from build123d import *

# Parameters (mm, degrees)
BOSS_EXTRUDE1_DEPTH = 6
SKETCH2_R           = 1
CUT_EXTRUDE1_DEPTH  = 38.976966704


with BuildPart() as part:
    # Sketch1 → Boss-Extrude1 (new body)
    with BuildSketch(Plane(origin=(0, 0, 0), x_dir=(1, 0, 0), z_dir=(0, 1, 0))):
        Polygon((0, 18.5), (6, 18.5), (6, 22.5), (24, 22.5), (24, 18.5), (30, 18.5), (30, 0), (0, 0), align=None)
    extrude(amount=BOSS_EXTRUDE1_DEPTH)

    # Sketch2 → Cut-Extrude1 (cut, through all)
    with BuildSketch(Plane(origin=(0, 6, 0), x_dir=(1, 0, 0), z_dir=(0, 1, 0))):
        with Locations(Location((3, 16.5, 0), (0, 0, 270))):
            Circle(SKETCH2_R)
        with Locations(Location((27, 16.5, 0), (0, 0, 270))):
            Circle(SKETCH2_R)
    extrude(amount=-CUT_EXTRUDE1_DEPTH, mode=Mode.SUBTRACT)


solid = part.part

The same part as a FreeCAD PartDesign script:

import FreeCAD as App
import Part
import Sketcher

V = App.Vector

doc = App.newDocument("Part")
body = doc.addObject("PartDesign::Body", "Body")

sketch1 = doc.addObject("Sketcher::SketchObject", "Sketch")
body.addObject(sketch1)
sketch1.AttachmentSupport = (doc.XZ_Plane, [""])
sketch1.MapMode = "FlatFace"
sketch1.addGeometry([
    Part.LineSegment(V(6, -18.5, 0), V(0, -18.5, 0)),
    Part.LineSegment(V(0, -18.5, 0), V(0, 0, 0)),
    Part.LineSegment(V(0, 0, 0), V(30, 0, 0)),
    Part.LineSegment(V(30, 0, 0), V(30, -18.5, 0)),
    Part.LineSegment(V(30, -18.5, 0), V(24, -18.5, 0)),
    Part.LineSegment(V(24, -18.5, 0), V(24, -22.5, 0)),
    Part.LineSegment(V(24, -22.5, 0), V(6, -22.5, 0)),
    Part.LineSegment(V(6, -22.5, 0), V(6, -18.5, 0)),
], False)
sketch1.addConstraint([
    Sketcher.Constraint("Coincident", 0, 2, 1, 1),
    Sketcher.Constraint("Coincident", 1, 2, 2, 1),
    Sketcher.Constraint("Coincident", 2, 2, 3, 1),
    Sketcher.Constraint("Coincident", 3, 2, 4, 1),
    Sketcher.Constraint("Coincident", 4, 2, 5, 1),
    Sketcher.Constraint("Coincident", 5, 2, 6, 1),
    Sketcher.Constraint("Coincident", 6, 2, 7, 1),
    Sketcher.Constraint("Coincident", 7, 2, 0, 1),
    Sketcher.Constraint("Horizontal", 0),
    Sketcher.Constraint("Vertical", 1),
    Sketcher.Constraint("Horizontal", 2),
    Sketcher.Constraint("Vertical", 3),
    Sketcher.Constraint("Horizontal", 4),
    Sketcher.Constraint("Vertical", 5),
    Sketcher.Constraint("Horizontal", 6),
    Sketcher.Constraint("Vertical", 7),
    Sketcher.Constraint("Coincident", 1, 2, -1, 1),
    Sketcher.Constraint("Horizontal", 0, 2, 3, 2),
    Sketcher.Constraint("Equal", 0, 4),
    Sketcher.Constraint("DistanceX", 0, 2, 0, 1, 6.0),
    Sketcher.Constraint("DistanceX", 2, 1, 2, 2, 30.0),
    Sketcher.Constraint("DistanceY", 5, 2, 5, 1, 4.0),
    Sketcher.Constraint("DistanceY", 1, 1, 1, 2, 18.5),
])
pad1 = doc.addObject("PartDesign::Pad", "Pad")
body.addObject(pad1)
pad1.Profile = sketch1
pad1.Length = 6
pad1.Reversed = True

sketch2 = doc.addObject("Sketcher::SketchObject", "Sketch001")
body.addObject(sketch2)
sketch2.AttachmentSupport = (doc.XZ_Plane, [""])
sketch2.MapMode = "FlatFace"
sketch2.AttachmentOffset = App.Placement(V(0, 0, -6), App.Rotation())
sketch2.addGeometry([
    Part.Circle(V(3, -16.5, 0), V(0, 0, 1), 1),
    Part.Circle(V(27, -16.5, 0), V(0, 0, 1), 1),
], False)
sketch2.addConstraint([
    Sketcher.Constraint("Equal", 0, 1),
    Sketcher.Constraint("Horizontal", 0, 3, 1, 3),
    Sketcher.Constraint("Diameter", 0, 2.0),
    Sketcher.Constraint("DistanceX", -1, 1, 0, 3, 3.0),
    Sketcher.Constraint("DistanceX", -1, 1, 1, 3, 27.0),
    Sketcher.Constraint("DistanceY", 0, 3, -1, 1, 16.5),
])
pocket1 = doc.addObject("PartDesign::Pocket", "Pocket")
body.addObject(pocket1)
pocket1.Profile = sketch2
pocket1.Type = "ThroughAll"
pocket1.Reversed = True

doc.recompute()
